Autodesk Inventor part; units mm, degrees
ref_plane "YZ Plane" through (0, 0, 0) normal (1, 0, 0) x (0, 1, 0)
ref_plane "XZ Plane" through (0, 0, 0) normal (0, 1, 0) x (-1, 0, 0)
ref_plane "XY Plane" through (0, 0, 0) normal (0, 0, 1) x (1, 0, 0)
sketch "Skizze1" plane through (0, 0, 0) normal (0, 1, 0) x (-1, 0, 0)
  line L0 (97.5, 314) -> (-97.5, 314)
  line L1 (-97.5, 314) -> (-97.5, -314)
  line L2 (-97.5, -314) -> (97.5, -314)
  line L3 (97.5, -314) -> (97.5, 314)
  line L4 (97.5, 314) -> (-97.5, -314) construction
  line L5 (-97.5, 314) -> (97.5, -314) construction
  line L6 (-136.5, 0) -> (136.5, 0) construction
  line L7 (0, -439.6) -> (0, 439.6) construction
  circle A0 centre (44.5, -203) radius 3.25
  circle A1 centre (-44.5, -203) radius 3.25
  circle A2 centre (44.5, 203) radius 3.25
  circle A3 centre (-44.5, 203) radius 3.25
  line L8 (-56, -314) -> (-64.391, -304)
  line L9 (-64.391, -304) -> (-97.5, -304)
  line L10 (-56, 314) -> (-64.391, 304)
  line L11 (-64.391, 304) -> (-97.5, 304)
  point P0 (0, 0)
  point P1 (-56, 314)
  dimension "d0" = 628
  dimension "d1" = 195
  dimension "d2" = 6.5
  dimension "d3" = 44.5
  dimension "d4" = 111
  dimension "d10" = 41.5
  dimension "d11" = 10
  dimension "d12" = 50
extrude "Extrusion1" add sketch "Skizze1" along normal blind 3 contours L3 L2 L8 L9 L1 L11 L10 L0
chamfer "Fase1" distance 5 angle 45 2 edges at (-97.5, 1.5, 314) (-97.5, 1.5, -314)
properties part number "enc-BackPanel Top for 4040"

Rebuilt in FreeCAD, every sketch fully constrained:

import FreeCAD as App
import Part
import Sketcher

V = App.Vector
Q = App.Units.Quantity


def edges_at(feature, points):
    """Names of the edges that pass closest to the given points."""
    edges = feature.Shape.Edges
    near = lambda p: min(range(len(edges)), key=lambda i: edges[i].distToShape(Part.Vertex(*p))[0])
    return sorted({f"Edge{near(p) + 1}" for p in points})

doc = App.newDocument("Part")
params = doc.addObject("Spreadsheet::Sheet", "Params")
for row, (alias, value) in enumerate([
    ("sketch1_diameter", "6.5 mm"),
    ("sketch1_height", "628 mm"),
    ("pad1_length", "3 mm"),
    ("chamfer_size", "5 mm"),
], start=1):
    params.set(f"A{row}", alias)
    params.set(f"B{row}", "=" + value)
    params.setAlias(f"B{row}", alias)

body = doc.addObject("PartDesign::Body", "Body")

sketch1 = body.newObject("Sketcher::SketchObject", "Sketch")
sketch1.AttachmentSupport = (doc.getObject("XZ_Plane"), [""])
sketch1.MapMode = "FlatFace"
sketch1.addGeometry([
    Part.LineSegment(V(-97.5, -314, 0), V(-97.5, 314, 0)),
    Part.LineSegment(V(-97.5, 314, 0), V(56, 314, 0)),
    Part.LineSegment(V(56, 314, 0), V(64.4, 304, 0)),
    Part.LineSegment(V(64.4, 304, 0), V(97.5, 304, 0)),
    Part.LineSegment(V(97.5, 304, 0), V(97.5, -304, 0)),
    Part.LineSegment(V(97.5, -304, 0), V(64.4, -304, 0)),
    Part.LineSegment(V(64.4, -304, 0), V(56, -314, 0)),
    Part.LineSegment(V(56, -314, 0), V(-97.5, -314, 0)),
    Part.Circle(V(44.5, -203, 0), V(0, 0, 1), 3.2),
    Part.Circle(V(-44.5, -203, 0), V(0, 0, 1), 3.2),
    Part.Circle(V(44.5, 203, 0), V(0, 0, 1), 3.2),
    Part.Circle(V(-44.5, 203, 0), V(0, 0, 1), 3.2),
], False)
sketch1.addConstraint([
    Sketcher.Constraint("Coincident", 0, 2, 1, 1),
    Sketcher.Constraint("Coincident", 1, 2, 2, 1),
    Sketcher.Constraint("Coincident", 2, 2, 3, 1),
    Sketcher.Constraint("Coincident", 3, 2, 4, 1),
    Sketcher.Constraint("Coincident", 4, 2, 5, 1),
    Sketcher.Constraint("Coincident", 5, 2, 6, 1),
    Sketcher.Constraint("Coincident", 6, 2, 7, 1),
    Sketcher.Constraint("Coincident", 7, 2, 0, 1),
    Sketcher.Constraint("Vertical", 0),
    Sketcher.Constraint("Horizontal", 1),
    Sketcher.Constraint("Horizontal", 3),
    Sketcher.Constraint("Vertical", 4),
    Sketcher.Constraint("Horizontal", 5),
    Sketcher.Constraint("Horizontal", 7),
    Sketcher.Constraint("Equal", 8, 9),
    Sketcher.Constraint("Equal", 9, 10),
    Sketcher.Constraint("Equal", 10, 11),
    Sketcher.Constraint("Symmetric", 9, 3, 10, 3, -1, 1),
    Sketcher.Constraint("Symmetric", 8, 3, 11, 3, -1, 1),
    Sketcher.Constraint("Symmetric", 8, 3, 9, 3, -2),
    Sketcher.Constraint("Symmetric", 2, 2, 5, 2, -1),
    Sketcher.Constraint("Symmetric", 1, 2, 6, 2, -1),
    Sketcher.Constraint("Diameter", 8, Q("6.5 mm")),
    Sketcher.Constraint("DistanceY", 0, 1, 0, 2, Q("628 mm")),
    Sketcher.Constraint("Angle", 2, Q("-50 deg")),
    Sketcher.Constraint("DistanceY", 11, 3, 0, 2, Q("111 mm")),
    Sketcher.Constraint("DistanceY", 2, 2, 1, 2, Q("10 mm")),
    Sketcher.Constraint("DistanceX", 0, 2, 3, 2, Q("195 mm")),
    Sketcher.Constraint("DistanceX", -1, 1, 8, 3, Q("44.5 mm")),
    Sketcher.Constraint("DistanceX", 1, 2, 3, 2, Q("41.5 mm")),
    Sketcher.Constraint("DistanceX", -1, 1, 1, 2, Q("56 mm")),
])
sketch1.setExpression("Constraints[22]", "Params.sketch1_diameter")
sketch1.setExpression("Constraints[23]", "Params.sketch1_height")
pad1 = body.newObject("PartDesign::Pad", "Pad")
pad1.Profile = sketch1
pad1.setExpression("Length", "Params.pad1_length")
pad1.Reversed = True
doc.recompute()

chamfer = body.newObject("PartDesign::Chamfer", "Chamfer")
chamfer.Base = (pad1, edges_at(pad1, [(-97.5, 1.5, 314), (-97.5, 1.5, -314)]))
chamfer.setExpression("Size", "Params.chamfer_size")

doc.recompute()
